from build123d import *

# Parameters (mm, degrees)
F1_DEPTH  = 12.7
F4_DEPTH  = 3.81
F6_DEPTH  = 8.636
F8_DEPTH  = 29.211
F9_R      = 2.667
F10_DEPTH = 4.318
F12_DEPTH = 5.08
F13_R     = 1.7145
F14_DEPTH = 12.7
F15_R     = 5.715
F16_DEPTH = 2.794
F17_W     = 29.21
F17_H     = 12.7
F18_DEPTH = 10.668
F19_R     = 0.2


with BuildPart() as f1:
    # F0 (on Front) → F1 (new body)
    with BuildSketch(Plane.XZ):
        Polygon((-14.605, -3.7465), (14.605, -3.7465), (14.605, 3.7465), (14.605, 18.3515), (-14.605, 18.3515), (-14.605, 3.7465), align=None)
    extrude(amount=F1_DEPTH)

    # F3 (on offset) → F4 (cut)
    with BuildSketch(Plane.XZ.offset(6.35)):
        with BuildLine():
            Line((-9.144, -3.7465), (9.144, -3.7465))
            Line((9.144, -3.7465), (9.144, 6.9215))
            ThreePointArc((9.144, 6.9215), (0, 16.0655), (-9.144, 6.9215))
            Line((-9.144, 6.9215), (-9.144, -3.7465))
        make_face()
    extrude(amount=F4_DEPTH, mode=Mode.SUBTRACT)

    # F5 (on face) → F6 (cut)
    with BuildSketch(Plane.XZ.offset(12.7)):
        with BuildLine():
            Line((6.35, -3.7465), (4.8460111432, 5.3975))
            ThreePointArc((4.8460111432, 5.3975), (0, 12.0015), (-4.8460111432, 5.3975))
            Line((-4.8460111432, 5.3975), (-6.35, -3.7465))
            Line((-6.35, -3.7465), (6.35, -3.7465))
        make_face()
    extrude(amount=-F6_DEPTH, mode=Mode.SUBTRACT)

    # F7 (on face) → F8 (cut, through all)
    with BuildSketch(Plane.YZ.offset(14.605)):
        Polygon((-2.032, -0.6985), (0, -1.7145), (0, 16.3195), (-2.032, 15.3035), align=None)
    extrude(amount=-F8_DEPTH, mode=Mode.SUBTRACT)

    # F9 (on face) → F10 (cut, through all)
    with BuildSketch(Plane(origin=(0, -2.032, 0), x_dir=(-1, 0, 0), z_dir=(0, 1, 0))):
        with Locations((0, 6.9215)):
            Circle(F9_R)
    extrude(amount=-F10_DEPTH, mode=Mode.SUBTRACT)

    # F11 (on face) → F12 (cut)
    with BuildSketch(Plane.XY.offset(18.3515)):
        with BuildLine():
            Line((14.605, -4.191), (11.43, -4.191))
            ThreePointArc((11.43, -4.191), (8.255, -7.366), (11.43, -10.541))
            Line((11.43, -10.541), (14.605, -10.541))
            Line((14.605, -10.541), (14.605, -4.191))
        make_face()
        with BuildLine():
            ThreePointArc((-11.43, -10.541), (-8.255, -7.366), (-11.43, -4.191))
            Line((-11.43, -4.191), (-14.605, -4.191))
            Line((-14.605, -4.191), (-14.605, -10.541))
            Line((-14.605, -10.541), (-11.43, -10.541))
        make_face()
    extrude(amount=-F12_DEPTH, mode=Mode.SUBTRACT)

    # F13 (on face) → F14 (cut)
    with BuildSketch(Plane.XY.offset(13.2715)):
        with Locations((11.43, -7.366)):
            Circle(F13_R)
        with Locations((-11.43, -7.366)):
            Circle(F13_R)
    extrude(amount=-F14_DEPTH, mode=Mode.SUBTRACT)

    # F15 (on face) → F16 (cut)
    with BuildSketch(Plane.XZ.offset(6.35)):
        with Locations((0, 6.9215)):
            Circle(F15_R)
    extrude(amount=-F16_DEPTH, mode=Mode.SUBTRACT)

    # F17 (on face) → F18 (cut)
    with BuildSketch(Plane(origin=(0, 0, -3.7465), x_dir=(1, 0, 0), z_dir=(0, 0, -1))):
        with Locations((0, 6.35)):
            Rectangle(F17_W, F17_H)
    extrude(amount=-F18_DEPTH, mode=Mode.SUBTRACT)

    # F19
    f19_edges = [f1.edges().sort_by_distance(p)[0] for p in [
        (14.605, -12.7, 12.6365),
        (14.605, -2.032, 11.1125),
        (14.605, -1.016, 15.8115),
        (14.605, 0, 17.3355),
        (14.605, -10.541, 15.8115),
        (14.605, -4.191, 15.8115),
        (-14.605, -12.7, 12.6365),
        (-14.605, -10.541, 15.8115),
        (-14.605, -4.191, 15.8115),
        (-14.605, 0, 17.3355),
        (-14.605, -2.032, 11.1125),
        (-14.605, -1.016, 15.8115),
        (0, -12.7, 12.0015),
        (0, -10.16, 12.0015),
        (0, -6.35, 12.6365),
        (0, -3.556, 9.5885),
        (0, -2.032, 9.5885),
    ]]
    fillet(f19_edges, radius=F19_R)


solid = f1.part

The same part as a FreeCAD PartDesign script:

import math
import FreeCAD as App
import Part
import Sketcher
from FreeCAD import Vector
Q = App.Units.Quantity


def edges_at(feature, points):
    """Names of the edges that pass closest to the given points."""
    edges = feature.Shape.Edges
    near = lambda p: min(range(len(edges)), key=lambda i: edges[i].distToShape(Part.Vertex(*p))[0])
    return sorted({f"Edge{near(p) + 1}" for p in points})

doc = App.newDocument("Part")
body = doc.addObject("PartDesign::Body", "Body")

# Sketch on XZ plane
sketch1 = body.newObject("Sketcher::SketchObject", "Sketch")
sketch1.AttachmentSupport = (doc.getObject("XZ_Plane"), [""])
sketch1.MapMode = "FlatFace"
sketch1.addGeometry([
    Part.LineSegment(Vector(-14.605, -3.7465, 0), Vector(14.605, -3.7465, 0)),
    Part.LineSegment(Vector(14.605, -3.7465, 0), Vector(14.605, 18.3515, 0)),
    Part.LineSegment(Vector(14.605, 18.3515, 0), Vector(-14.605, 18.3515, 0)),
    Part.LineSegment(Vector(-14.605, 18.3515, 0), Vector(-14.605, -3.7465, 0)),
], False)
sketch1.addConstraint([
    Sketcher.Constraint("Coincident", 0, 2, 1, 1),
    Sketcher.Constraint("Coincident", 1, 2, 2, 1),
    Sketcher.Constraint("Coincident", 2, 2, 3, 1),
    Sketcher.Constraint("Coincident", 3, 2, 0, 1),
    Sketcher.Constraint("Horizontal", 0),
    Sketcher.Constraint("Vertical", 1),
    Sketcher.Constraint("Horizontal", 2),
    Sketcher.Constraint("Vertical", 3),
    Sketcher.Constraint("DistanceX", 0, 1, 0, 2, Q("1.15 in")),
    Sketcher.Constraint("DistanceY", 1, 1, 1, 2, Q("0.87 in")),
    Sketcher.Constraint("DistanceX", -1, 1, 0, 2, Q("0.575 in")),
    Sketcher.Constraint("DistanceY", 0, 2, -1, 1, Q("0.1475 in")),
])
pad1 = body.newObject("PartDesign::Pad", "Pad")
pad1.Profile = sketch1
pad1.Length = Q("0.5 in")

# Sketch on XZ plane
sketch2 = body.newObject("Sketcher::SketchObject", "Sketch001")
sketch2.AttachmentSupport = (doc.getObject("XZ_Plane"), [""])
sketch2.MapMode = "FlatFace"
sketch2.AttachmentOffset = App.Placement(Vector(0, 0, 0.25 * 25.4), App.Rotation())
sketch2.addGeometry([
    Part.LineSegment(Vector(-9.144, -3.7465, 0), Vector(9.144, -3.7465, 0)),
    Part.LineSegment(Vector(9.144, -3.7465, 0), Vector(9.144, 6.9215, 0)),
    Part.ArcOfCircle(Part.Circle(Vector(0, 6.9215, 0), Vector(0, 0, 1), 9.144), math.radians(0), math.radians(180)),
    Part.LineSegment(Vector(-9.144, 6.9215, 0), Vector(-9.144, -3.7465, 0)),
], False)
sketch2.addConstraint([
    Sketcher.Constraint("Coincident", 0, 2, 1, 1),
    Sketcher.Constraint("Tangent", 1, 2, 2, 1),
    Sketcher.Constraint("Tangent", 2, 2, 3, 1),
    Sketcher.Constraint("Coincident", 3, 2, 0, 1),
    Sketcher.Constraint("Horizontal", 0),
    Sketcher.Constraint("Vertical", 1),
    Sketcher.Constraint("Vertical", 3),
    Sketcher.Constraint("PointOnObject", 2, 3, -2),
    Sketcher.Constraint("Radius", 2, Q("0.36 in")),
    Sketcher.Constraint("DistanceY", 1, 1, 1, 2, Q("0.42 in")),
    Sketcher.Constraint("DistanceY", -1, 1, 2, 3, Q("0.2725 in")),
])
pocket1 = body.newObject("PartDesign::Pocket", "Pocket")
pocket1.Profile = sketch2
pocket1.Length = Q("0.15 in")
pocket1.Reversed = True

# Sketch on XZ plane
sketch3 = body.newObject("Sketcher::SketchObject", "Sketch002")
sketch3.AttachmentSupport = (doc.getObject("XZ_Plane"), [""])
sketch3.MapMode = "FlatFace"
sketch3.AttachmentOffset = App.Placement(Vector(0, 0, 0.5 * 25.4), App.Rotation())
sketch3.addGeometry([
    Part.LineSegment(Vector(6.35, -3.7465, 0), Vector(4.846011, 5.3975, 0)),
    Part.ArcOfCircle(Part.Circle(Vector(0, 6.9215, 0), Vector(0, 0, 1), 5.08), math.radians(-17.457603), math.radians(197.457603)),
    Part.LineSegment(Vector(-4.846011, 5.3975, 0), Vector(-6.35, -3.7465, 0)),
    Part.LineSegment(Vector(-6.35, -3.7465, 0), Vector(6.35, -3.7465, 0)),
], False)
sketch3.addConstraint([
    Sketcher.Constraint("Coincident", 0, 2, 1, 1),
    Sketcher.Constraint("Coincident", 1, 2, 2, 1),
    Sketcher.Constraint("Coincident", 2, 2, 3, 1),
    Sketcher.Constraint("Coincident", 3, 2, 0, 1),
    Sketcher.Constraint("Horizontal", 3),
    Sketcher.Constraint("Symmetric", 0, 2, 1, 2, -2),
    Sketcher.Constraint("Equal", 0, 2),
    Sketcher.Constraint("Radius", 1, Q("0.2 in")),
    Sketcher.Constraint("DistanceX", 3, 1, 3, 2, Q("0.5 in")),
    Sketcher.Constraint("DistanceY", 0, 2, 1, 3, Q("0.06 in")),
    Sketcher.Constraint("DistanceY", 2, 2, 1, 2, Q("0.36 in")),
    Sketcher.Constraint("DistanceY", -1, 1, 1, 3, Q("0.2725 in")),
])
pocket2 = body.newObject("PartDesign::Pocket", "Pocket001")
pocket2.Profile = sketch3
pocket2.Length = Q("0.34 in")

# Sketch on YZ plane
sketch4 = body.newObject("Sketcher::SketchObject", "Sketch003")
sketch4.AttachmentSupport = (doc.getObject("YZ_Plane"), [""])
sketch4.MapMode = "FlatFace"
sketch4.AttachmentOffset = App.Placement(Vector(0, 0, 0.575 * 25.4), App.Rotation())
sketch4.addGeometry([
    Part.LineSegment(Vector(-2.032, -0.6985, 0), Vector(0, -1.7145, 0)),
    Part.LineSegment(Vector(0, -1.7145, 0), Vector(0, 16.3195, 0)),
    Part.LineSegment(Vector(0, 16.3195, 0), Vector(-2.032, 15.3035, 0)),
    Part.LineSegment(Vector(-2.032, 15.3035, 0), Vector(-2.032, -0.6985, 0)),
], False)
sketch4.addConstraint([
    Sketcher.Constraint("Coincident", 0, 2, 1, 1),
    Sketcher.Constraint("Coincident", 1, 2, 2, 1),
    Sketcher.Constraint("Coincident", 2, 2, 3, 1),
    Sketcher.Constraint("Coincident", 3, 2, 0, 1),
    Sketcher.Constraint("Vertical", 1),
    Sketcher.Constraint("Vertical", 3),
    Sketcher.Constraint("PointOnObject", 0, 2, -2),
    Sketcher.Constraint("Equal", 0, 2),
    Sketcher.Constraint("DistanceY", 1, 1, 1, 2, Q("0.71 in")),
    Sketcher.Constraint("DistanceY", 3, 2, 3, 1, Q("0.63 in")),
    Sketcher.Constraint("DistanceX", 2, 2, -1, 1, Q("0.08 in")),
    Sketcher.Constraint("DistanceY", 0, 2, -1, 1, Q("0.0675 in")),
])
pocket3 = body.newObject("PartDesign::Pocket", "Pocket002")
pocket3.Profile = sketch4
pocket3.Type = "ThroughAll"

# Sketch on XZ plane
sketch5 = body.newObject("Sketcher::SketchObject", "Sketch004")
sketch5.AttachmentSupport = (doc.getObject("XZ_Plane"), [""])
sketch5.MapMode = "FlatFace"
sketch5.AttachmentOffset = App.Placement(Vector(0, 0, 0.08 * 25.4), App.Rotation())
sketch5.addGeometry(Part.Circle(Vector(0, 6.9215, 0), Vector(0, 0, 1), 2.667), False)
sketch5.addConstraint([
    Sketcher.Constraint("PointOnObject", 0, 3, -2),
    Sketcher.Constraint("Diameter", 0, Q("0.21 in")),
    Sketcher.Constraint("DistanceY", -1, 1, 0, 3, Q("0.2725 in")),
])
pocket4 = body.newObject("PartDesign::Pocket", "Pocket003")
pocket4.Profile = sketch5
pocket4.Type = "ThroughAll"
pocket4.Reversed = True

# Sketch on XY plane
sketch6 = body.newObject("Sketcher::SketchObject", "Sketch005")
sketch6.AttachmentSupport = (doc.getObject("XY_Plane"), [""])
sketch6.MapMode = "FlatFace"
sketch6.AttachmentOffset = App.Placement(Vector(0, 0, 0.7225 * 25.4), App.Rotation())
sketch6.addGeometry([
    Part.LineSegment(Vector(14.605, -4.191, 0), Vector(11.43, -4.191, 0)),  # 0
    Part.ArcOfCircle(Part.Circle(Vector(11.43, -7.366, 0), Vector(0, 0, 1), 3.175), math.radians(90), math.radians(270)),  # 1
    Part.LineSegment(Vector(11.43, -10.541, 0), Vector(14.605, -10.541, 0)),  # 2
    Part.LineSegment(Vector(14.605, -10.541, 0), Vector(14.605, -4.191, 0)),  # 3
    Part.ArcOfCircle(Part.Circle(Vector(-11.43, -7.366, 0), Vector(0, 0, 1), 3.175), math.radians(-90), math.radians(90)),  # 4
    Part.LineSegment(Vector(-11.43, -4.191, 0), Vector(-14.605, -4.191, 0)),  # 5
    Part.LineSegment(Vector(-14.605, -4.191, 0), Vector(-14.605, -10.541, 0)),  # 6
    Part.LineSegment(Vector(-14.605, -10.541, 0), Vector(-11.43, -10.541, 0)),  # 7
], False)
sketch6.addConstraint([
    Sketcher.Constraint("Tangent", 0, 2, 1, 1),
    Sketcher.Constraint("Tangent", 1, 2, 2, 1),
    Sketcher.Constraint("Coincident", 2, 2, 3, 1),
    Sketcher.Constraint("Coincident", 3, 2, 0, 1),
    Sketcher.Constraint("Tangent", 4, 2, 5, 1),
    Sketcher.Constraint("Coincident", 5, 2, 6, 1),
    Sketcher.Constraint("Coincident", 6, 2, 7, 1),
    Sketcher.Constraint("Tangent", 7, 2, 4, 1),
    Sketcher.Constraint("Horizontal", 0),
    Sketcher.Constraint("Horizontal", 2),
    Sketcher.Constraint("Vertical", 3),
    Sketcher.Constraint("Horizontal", 5),
    Sketcher.Constraint("Vertical", 6),
    Sketcher.Constraint("Horizontal", 7),
    Sketcher.Constraint("Equal", 1, 4),
    Sketcher.Constraint("Symmetric", 1, 3, 4, 3, -2),
    Sketcher.Constraint("Equal", 2, 5),
    Sketcher.Constraint("Radius", 1, Q("0.125 in")),
    Sketcher.Constraint("DistanceX", 4, 3, 1, 3, Q("0.9 in")),
    Sketcher.Constraint("DistanceX", 0, 2, 0, 1, Q("0.125 in")),
    Sketcher.Constraint("DistanceY", 1, 3, -1, 1, Q("0.29 in")),
])
pocket5 = body.newObject("PartDesign::Pocket", "Pocket004")
pocket5.Profile = sketch6
pocket5.Length = Q("0.2 in")

# Sketch on XY plane
sketch7 = body.newObject("Sketcher::SketchObject", "Sketch006")
sketch7.AttachmentSupport = (doc.getObject("XY_Plane"), [""])
sketch7.MapMode = "FlatFace"
sketch7.AttachmentOffset = App.Placement(Vector(0, 0, 0.5225 * 25.4), App.Rotation())
sketch7.addGeometry([
    Part.Circle(Vector(11.43, -7.366, 0), Vector(0, 0, 1), 1.7145),
    Part.Circle(Vector(-11.43, -7.366, 0), Vector(0, 0, 1), 1.7145),
], False)
sketch7.addConstraint([
    Sketcher.Constraint("Equal", 0, 1),
    Sketcher.Constraint("Symmetric", 0, 3, 1, 3, -2),
    Sketcher.Constraint("Diameter", 0, Q("0.135 in")),
    Sketcher.Constraint("DistanceX", 1, 3, 0, 3, Q("0.9 in")),
    Sketcher.Constraint("DistanceY", 0, 3, -1, 1, Q("0.29 in")),
])
pocket6 = body.newObject("PartDesign::Pocket", "Pocket005")
pocket6.Profile = sketch7
pocket6.Length = Q("0.5 in")

# Sketch on XZ plane
sketch8 = body.newObject("Sketcher::SketchObject", "Sketch007")
sketch8.AttachmentSupport = (doc.getObject("XZ_Plane"), [""])
sketch8.MapMode = "FlatFace"
sketch8.AttachmentOffset = App.Placement(Vector(0, 0, 0.25 * 25.4), App.Rotation())
sketch8.addGeometry(Part.Circle(Vector(0, 6.9215, 0), Vector(0, 0, 1), 5.715), False)
sketch8.addConstraint([
    Sketcher.Constraint("PointOnObject", 0, 3, -2),
    Sketcher.Constraint("Diameter", 0, Q("0.45 in")),
    Sketcher.Constraint("DistanceY", -1, 1, 0, 3, Q("0.2725 in")),
])
pocket7 = body.newObject("PartDesign::Pocket", "Pocket006")
pocket7.Profile = sketch8
pocket7.Length = Q("0.11 in")

# Sketch on XY plane
sketch9 = body.newObject("Sketcher::SketchObject", "Sketch008")
sketch9.AttachmentSupport = (doc.getObject("XY_Plane"), [""])
sketch9.MapMode = "FlatFace"
sketch9.AttachmentOffset = App.Placement(Vector(0, 0, -0.1475 * 25.4), App.Rotation())
sketch9.addGeometry([
    Part.LineSegment(Vector(-14.605, -12.7, 0), Vector(-14.605, 0, 0)),
    Part.LineSegment(Vector(-14.605, 0, 0), Vector(14.605, 0, 0)),
    Part.LineSegment(Vector(14.605, 0, 0), Vector(14.605, -12.7, 0)),
    Part.LineSegment(Vector(14.605, -12.7, 0), Vector(-14.605, -12.7, 0)),
], False)
sketch9.addConstraint([
    Sketcher.Constraint("Coincident", 0, 2, 1, 1),
    Sketcher.Constraint("Coincident", 1, 2, 2, 1),
    Sketcher.Constraint("Coincident", 2, 2, 3, 1),
    Sketcher.Constraint("Coincident", 3, 2, 0, 1),
    Sketcher.Constraint("Vertical", 0),
    Sketcher.Constraint("Horizontal", 1),
    Sketcher.Constraint("Vertical", 2),
    Sketcher.Constraint("Horizontal", 3),
    Sketcher.Constraint("Symmetric", 0, 2, 1, 2, -1, 1),
    Sketcher.Constraint("DistanceY", 0, 1, 0, 2, Q("0.5 in")),
    Sketcher.Constraint("DistanceX", 1, 1, 1, 2, Q("1.15 in")),
])
pocket8 = body.newObject("PartDesign::Pocket", "Pocket007")
pocket8.Profile = sketch9
pocket8.Length = Q("0.42 in")
pocket8.Reversed = True
doc.recompute()

fillet = body.newObject("PartDesign::Fillet", "Fillet")
fillet.Base = (pocket8, edges_at(pocket8, [
    (14.605, -12.7, 12.636),
    (14.605, -2.032, 11.113),
    (14.605, -1.016, 15.812),
    (14.605, 0, 17.335),
    (14.605, -10.541, 15.812),
    (14.605, -4.191, 15.812),
    (-14.605, -12.7, 12.636),
    (-14.605, -10.541, 15.812),
    (-14.605, -4.191, 15.812),
    (-14.605, 0, 17.335),
    (-14.605, -2.032, 11.113),
    (-14.605, -1.016, 15.812),
    (0, -12.7, 12.002),
    (0, -10.16, 12.002),
    (0, -6.35, 12.636),
    (0, -3.556, 9.588),
    (0, -2.032, 9.588),
]))
fillet.Radius = 0.2

doc.recompute()
